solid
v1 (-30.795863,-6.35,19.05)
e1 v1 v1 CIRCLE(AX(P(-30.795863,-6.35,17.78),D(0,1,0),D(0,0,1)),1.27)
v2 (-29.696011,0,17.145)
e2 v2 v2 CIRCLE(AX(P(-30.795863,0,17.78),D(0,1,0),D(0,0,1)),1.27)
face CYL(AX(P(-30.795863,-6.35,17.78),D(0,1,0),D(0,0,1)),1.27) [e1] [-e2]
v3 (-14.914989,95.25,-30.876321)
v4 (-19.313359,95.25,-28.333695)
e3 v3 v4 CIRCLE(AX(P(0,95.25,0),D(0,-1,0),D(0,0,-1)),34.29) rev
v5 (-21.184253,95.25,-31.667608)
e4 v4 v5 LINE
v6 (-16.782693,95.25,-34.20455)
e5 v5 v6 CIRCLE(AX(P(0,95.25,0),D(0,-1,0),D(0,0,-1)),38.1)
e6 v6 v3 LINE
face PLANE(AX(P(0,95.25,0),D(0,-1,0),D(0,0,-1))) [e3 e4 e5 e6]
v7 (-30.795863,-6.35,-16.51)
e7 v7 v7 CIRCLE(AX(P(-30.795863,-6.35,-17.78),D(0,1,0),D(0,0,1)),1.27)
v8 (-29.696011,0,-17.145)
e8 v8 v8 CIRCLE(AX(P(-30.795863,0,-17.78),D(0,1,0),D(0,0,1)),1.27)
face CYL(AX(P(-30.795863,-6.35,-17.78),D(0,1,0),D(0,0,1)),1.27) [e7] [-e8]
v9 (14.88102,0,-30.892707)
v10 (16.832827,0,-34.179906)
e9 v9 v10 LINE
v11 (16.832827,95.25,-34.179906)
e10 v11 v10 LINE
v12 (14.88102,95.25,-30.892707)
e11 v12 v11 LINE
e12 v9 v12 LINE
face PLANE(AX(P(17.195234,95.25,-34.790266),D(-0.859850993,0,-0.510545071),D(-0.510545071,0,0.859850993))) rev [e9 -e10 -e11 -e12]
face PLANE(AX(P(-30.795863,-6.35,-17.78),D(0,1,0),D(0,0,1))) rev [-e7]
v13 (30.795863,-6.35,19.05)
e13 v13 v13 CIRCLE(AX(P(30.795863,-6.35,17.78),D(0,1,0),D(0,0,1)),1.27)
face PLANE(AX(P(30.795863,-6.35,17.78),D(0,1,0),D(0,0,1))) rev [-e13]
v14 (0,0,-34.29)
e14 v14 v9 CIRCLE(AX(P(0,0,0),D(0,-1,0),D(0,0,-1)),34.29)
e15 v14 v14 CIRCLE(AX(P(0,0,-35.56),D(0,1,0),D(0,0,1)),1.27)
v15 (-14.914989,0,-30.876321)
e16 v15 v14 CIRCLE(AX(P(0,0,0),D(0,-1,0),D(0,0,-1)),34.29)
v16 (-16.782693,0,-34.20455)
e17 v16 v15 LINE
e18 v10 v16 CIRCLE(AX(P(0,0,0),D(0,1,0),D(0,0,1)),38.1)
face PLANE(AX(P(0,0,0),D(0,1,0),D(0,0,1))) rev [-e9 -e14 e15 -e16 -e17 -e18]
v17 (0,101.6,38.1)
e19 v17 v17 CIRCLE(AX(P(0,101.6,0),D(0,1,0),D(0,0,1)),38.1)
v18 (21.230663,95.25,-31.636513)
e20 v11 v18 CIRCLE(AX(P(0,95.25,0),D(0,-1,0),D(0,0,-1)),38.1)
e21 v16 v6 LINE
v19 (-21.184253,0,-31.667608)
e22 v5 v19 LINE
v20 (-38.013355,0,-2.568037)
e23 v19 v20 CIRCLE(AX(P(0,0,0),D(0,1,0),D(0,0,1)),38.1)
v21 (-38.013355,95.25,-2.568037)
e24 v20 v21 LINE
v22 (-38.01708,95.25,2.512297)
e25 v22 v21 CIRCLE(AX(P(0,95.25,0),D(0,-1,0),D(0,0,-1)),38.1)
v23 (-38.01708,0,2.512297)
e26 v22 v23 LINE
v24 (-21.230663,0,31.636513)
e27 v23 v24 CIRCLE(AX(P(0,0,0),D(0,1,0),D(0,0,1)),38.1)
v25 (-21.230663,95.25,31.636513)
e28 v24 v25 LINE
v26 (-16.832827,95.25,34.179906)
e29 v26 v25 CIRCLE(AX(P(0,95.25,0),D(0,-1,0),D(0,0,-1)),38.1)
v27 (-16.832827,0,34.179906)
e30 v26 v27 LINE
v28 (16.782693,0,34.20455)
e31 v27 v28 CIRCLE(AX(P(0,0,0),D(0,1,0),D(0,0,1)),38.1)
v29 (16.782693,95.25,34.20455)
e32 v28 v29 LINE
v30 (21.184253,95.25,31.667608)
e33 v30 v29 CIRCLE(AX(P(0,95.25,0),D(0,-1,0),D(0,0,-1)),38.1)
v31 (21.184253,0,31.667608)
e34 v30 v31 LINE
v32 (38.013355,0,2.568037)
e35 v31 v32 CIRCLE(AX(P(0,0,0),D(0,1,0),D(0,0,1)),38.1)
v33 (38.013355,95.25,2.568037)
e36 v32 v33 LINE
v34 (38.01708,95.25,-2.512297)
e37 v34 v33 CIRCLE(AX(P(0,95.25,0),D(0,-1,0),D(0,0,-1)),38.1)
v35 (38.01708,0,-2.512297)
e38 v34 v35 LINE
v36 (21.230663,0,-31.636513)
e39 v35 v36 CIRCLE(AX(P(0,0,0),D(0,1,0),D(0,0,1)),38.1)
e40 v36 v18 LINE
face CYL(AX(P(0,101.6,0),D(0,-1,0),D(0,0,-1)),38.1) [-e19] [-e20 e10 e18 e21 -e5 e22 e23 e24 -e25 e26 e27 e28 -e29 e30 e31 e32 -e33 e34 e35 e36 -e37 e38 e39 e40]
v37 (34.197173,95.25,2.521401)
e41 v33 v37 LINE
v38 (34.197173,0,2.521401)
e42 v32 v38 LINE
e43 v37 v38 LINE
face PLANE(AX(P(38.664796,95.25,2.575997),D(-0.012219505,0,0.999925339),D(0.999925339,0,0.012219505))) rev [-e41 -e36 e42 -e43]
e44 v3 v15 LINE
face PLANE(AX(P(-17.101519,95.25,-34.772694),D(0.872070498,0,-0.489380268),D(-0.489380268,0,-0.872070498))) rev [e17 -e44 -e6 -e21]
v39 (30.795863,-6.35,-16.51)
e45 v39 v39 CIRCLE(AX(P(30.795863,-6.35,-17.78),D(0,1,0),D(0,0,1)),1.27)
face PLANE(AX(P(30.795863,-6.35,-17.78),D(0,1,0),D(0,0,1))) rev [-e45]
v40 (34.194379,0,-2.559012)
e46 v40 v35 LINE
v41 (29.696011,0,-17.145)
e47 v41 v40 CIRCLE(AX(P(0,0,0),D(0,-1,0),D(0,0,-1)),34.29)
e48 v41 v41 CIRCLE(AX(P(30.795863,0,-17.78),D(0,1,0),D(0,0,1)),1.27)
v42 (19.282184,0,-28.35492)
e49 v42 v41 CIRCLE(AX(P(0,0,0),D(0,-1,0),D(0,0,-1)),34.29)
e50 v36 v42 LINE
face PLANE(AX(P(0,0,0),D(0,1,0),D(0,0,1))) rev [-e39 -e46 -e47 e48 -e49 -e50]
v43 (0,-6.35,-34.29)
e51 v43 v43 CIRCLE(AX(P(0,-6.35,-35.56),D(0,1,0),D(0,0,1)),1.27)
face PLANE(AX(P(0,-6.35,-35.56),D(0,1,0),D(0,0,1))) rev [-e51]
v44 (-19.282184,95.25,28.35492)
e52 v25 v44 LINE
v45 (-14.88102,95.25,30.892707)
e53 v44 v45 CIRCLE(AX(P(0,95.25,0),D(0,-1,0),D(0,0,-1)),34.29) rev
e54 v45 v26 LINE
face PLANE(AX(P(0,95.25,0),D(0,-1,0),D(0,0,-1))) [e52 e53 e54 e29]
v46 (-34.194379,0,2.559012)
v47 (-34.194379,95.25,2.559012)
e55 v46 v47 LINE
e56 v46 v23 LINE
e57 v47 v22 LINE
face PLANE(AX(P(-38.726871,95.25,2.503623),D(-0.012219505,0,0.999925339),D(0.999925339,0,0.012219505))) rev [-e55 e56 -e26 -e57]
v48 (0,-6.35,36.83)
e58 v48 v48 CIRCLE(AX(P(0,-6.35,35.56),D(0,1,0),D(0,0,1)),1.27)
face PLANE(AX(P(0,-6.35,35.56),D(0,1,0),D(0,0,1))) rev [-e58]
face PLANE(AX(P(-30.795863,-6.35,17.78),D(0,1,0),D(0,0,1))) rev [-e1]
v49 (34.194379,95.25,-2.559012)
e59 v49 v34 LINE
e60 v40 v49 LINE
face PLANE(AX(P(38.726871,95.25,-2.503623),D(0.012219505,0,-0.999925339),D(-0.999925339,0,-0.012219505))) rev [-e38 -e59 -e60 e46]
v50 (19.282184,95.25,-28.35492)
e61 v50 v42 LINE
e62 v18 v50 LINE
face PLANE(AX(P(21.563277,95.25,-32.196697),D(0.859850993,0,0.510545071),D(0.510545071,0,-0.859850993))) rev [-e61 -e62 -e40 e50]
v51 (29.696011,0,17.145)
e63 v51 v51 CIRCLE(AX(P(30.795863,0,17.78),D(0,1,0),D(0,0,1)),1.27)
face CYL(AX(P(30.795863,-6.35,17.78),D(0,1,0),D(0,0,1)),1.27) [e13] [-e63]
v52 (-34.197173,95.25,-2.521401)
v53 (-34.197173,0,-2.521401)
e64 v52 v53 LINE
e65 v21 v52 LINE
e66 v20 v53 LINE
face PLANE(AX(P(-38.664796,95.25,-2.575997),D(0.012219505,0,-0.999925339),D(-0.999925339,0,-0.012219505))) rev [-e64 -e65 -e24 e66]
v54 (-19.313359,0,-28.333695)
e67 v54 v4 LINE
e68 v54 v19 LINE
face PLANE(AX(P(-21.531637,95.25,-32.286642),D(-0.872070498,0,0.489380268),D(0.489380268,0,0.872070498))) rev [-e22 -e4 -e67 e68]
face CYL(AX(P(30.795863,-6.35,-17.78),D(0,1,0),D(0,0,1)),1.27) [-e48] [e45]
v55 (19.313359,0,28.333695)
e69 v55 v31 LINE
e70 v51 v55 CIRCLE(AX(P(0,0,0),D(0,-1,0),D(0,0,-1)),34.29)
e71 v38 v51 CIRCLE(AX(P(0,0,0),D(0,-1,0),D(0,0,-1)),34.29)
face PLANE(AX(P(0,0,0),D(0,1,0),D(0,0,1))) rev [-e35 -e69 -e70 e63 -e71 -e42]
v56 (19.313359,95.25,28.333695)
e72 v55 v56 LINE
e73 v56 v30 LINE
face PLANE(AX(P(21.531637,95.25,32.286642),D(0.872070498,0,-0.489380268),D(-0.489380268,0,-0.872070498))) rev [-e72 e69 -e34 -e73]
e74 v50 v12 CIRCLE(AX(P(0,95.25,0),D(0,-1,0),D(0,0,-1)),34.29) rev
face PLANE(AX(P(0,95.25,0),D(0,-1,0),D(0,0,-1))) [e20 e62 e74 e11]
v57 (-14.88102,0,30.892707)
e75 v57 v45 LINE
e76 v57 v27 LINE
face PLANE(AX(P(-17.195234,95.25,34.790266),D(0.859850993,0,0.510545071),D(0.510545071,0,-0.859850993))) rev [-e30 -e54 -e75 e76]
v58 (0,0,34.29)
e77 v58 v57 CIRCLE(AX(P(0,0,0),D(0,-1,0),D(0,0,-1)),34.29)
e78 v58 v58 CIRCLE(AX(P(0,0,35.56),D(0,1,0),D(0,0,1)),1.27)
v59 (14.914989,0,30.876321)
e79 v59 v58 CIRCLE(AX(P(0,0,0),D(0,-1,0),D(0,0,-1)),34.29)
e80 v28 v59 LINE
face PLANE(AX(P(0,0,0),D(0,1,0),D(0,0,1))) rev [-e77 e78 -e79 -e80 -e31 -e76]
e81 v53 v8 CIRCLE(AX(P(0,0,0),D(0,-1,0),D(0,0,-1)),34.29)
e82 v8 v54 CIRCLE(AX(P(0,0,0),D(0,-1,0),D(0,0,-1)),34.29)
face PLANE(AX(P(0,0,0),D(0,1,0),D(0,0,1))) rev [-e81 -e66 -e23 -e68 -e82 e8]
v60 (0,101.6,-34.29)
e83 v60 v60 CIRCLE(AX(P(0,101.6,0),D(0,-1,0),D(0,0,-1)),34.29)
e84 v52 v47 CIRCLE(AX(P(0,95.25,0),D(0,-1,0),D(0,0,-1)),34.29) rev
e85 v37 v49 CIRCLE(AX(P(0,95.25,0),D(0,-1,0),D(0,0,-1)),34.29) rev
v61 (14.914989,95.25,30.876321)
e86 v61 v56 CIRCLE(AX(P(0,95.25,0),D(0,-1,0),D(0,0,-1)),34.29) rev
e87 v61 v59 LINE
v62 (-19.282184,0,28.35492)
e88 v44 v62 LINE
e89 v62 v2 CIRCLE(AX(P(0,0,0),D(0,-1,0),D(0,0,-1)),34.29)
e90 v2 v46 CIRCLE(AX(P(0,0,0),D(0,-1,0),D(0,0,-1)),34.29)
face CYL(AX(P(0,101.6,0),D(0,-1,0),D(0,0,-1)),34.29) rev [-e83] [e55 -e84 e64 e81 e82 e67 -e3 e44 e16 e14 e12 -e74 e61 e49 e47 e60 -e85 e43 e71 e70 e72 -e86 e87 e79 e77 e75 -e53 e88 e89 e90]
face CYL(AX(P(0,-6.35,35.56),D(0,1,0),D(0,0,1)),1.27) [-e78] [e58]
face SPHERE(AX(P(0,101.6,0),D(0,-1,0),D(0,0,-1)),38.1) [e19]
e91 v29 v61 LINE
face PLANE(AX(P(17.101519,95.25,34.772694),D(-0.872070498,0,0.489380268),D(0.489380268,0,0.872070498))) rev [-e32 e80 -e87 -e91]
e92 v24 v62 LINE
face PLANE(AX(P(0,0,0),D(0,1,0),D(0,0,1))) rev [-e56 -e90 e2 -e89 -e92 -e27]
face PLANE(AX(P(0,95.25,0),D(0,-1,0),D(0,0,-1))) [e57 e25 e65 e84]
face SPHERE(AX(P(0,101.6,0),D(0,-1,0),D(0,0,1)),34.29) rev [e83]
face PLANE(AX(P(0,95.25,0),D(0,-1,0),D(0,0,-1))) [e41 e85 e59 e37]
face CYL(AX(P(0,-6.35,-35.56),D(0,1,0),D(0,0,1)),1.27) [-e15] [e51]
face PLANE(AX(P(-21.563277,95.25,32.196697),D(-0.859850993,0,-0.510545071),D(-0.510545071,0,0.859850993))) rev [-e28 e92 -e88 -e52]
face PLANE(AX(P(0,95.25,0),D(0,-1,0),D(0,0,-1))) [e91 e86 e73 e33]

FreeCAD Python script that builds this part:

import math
import FreeCAD as App
import Part
import Sketcher

V = App.Vector
Q = App.Units.Quantity

doc = App.newDocument("Part")
body = doc.addObject("PartDesign::Body", "Body")

# Sketch on XZ plane
sketch1 = body.newObject("Sketcher::SketchObject", "Sketch")
sketch1.AttachmentSupport = (doc.getObject("XZ_Plane"), [""])
sketch1.MapMode = "FlatFace"
sketch1.addGeometry(Part.Circle(V(0, 0, 0), V(0, 0, 1), 38), False)
sketch1.addConstraint([
    Sketcher.Constraint("Coincident", 0, 3, -1, 1),
    Sketcher.Constraint("Diameter", 0, Q("3 in")),
])
pad1 = body.newObject("PartDesign::Pad", "Pad")
pad1.Profile = sketch1
pad1.Length = Q("4 in")
pad1.Reversed = True

# Sketch on YZ plane
sketch2 = body.newObject("Sketcher::SketchObject", "Sketch001")
sketch2.AttachmentSupport = (doc.getObject("YZ_Plane"), [""])
sketch2.MapMode = "FlatFace"
sketch2.addGeometry([
    Part.LineSegment(V(101.6, -34.3, 0), V(101.6, -38.1, 0)),
    Part.ArcOfCircle(Part.Circle(V(101.6, 0, 0), V(0, 0, 1), 38.1), math.radians(-90), math.radians(0)),
    Part.LineSegment(V(139.7, 0, 0), V(135.9, 0, 0)),
    Part.ArcOfCircle(Part.Circle(V(101.6, 0, 0), V(0, 0, 1), 34.3), math.radians(-90), math.radians(0)),
], False)
sketch2.addConstraint([
    Sketcher.Constraint("Coincident", 0, 2, 1, 1),
    Sketcher.Constraint("Coincident", 1, 2, 2, 1),
    Sketcher.Constraint("Coincident", 2, 2, 3, 2),
    Sketcher.Constraint("Coincident", 3, 1, 0, 1),
    Sketcher.Constraint("Vertical", 0),
    Sketcher.Constraint("Horizontal", 2),
    Sketcher.Constraint("Coincident", 3, 3, 1, 3),
    Sketcher.Constraint("PointOnObject", 1, 3, -1),
    Sketcher.Constraint("PointOnObject", 1, 2, -1),
    Sketcher.Constraint("Vertical", 3, 3, 0, 2),
    Sketcher.Constraint("Radius", 1, Q("1.5 in")),
    Sketcher.Constraint("Radius", 3, Q("1.35 in")),
    Sketcher.Constraint("DistanceX", -1, 1, 1, 3, Q("4 in")),
])
revolution = body.newObject("PartDesign::Revolution", "Revolution")
revolution.Profile = sketch2
revolution.ReferenceAxis = (sketch2, ["H_Axis"])
revolution.Angle = 360

# Sketch on XZ plane
sketch3 = body.newObject("Sketcher::SketchObject", "Sketch002")
sketch3.AttachmentSupport = (doc.getObject("XZ_Plane"), [""])
sketch3.MapMode = "FlatFace"
sketch3.addGeometry(Part.Circle(V(0, 0, 0), V(0, 0, 1), 34), False)
sketch3.addConstraint([
    Sketcher.Constraint("Coincident", 0, 3, -1, 1),
    Sketcher.Constraint("Diameter", 0, Q("2.7 in")),
])
pocket1 = body.newObject("PartDesign::Pocket", "Pocket")
pocket1.Profile = sketch3
pocket1.Length = Q("4 in")

# Sketch on XZ plane
sketch4 = body.newObject("Sketcher::SketchObject", "Sketch003")
sketch4.AttachmentSupport = (doc.getObject("XZ_Plane"), [""])
sketch4.MapMode = "FlatFace"
sketch4.addGeometry([
    Part.Circle(V(0, 35.6, 0), V(0, 0, 1), 1.3),  # 0
    Part.Circle(V(-30.8, 17.8, 0), V(0, 0, 1), 1.3),  # 1
    Part.Circle(V(-30.8, -17.8, 0), V(0, 0, 1), 1.3),  # 2
    Part.Circle(V(0, -35.6, 0), V(0, 0, 1), 1.3),  # 3
    Part.Circle(V(30.8, -17.8, 0), V(0, 0, 1), 1.3),  # 4
    Part.Circle(V(30.8, 17.8, 0), V(0, 0, 1), 1.3),  # 5
], False)
sketch4.addConstraint([
    Sketcher.Constraint("Equal", 0, 1),
    Sketcher.Constraint("Equal", 1, 2),
    Sketcher.Constraint("Equal", 2, 3),
    Sketcher.Constraint("Equal", 3, 4),
    Sketcher.Constraint("Equal", 4, 5),
    Sketcher.Constraint("Symmetric", 0, 3, 3, 3, -1, 1),
    Sketcher.Constraint("Symmetric", 1, 3, 4, 3, -1, 1),
    Sketcher.Constraint("Symmetric", 2, 3, 5, 3, -1, 1),
    Sketcher.Constraint("Symmetric", 2, 3, 4, 3, -2),
    Sketcher.Constraint("PointOnObject", 0, 3, -2),
    Sketcher.Constraint("Diameter", 0, Q("0.1 in")),
    Sketcher.Constraint("DistanceY", -1, 1, 0, 3, Q("1.4 in")),
    Sketcher.Constraint("DistanceY", -1, 1, 1, 3, Q("0.7 in")),
    Sketcher.Constraint("DistanceX", 1, 3, -1, 1, Q("30.795863 mm")),
])
pad2 = body.newObject("PartDesign::Pad", "Pad001")
pad2.Profile = sketch4
pad2.Length = Q("0.25 in")

# Sketch on XZ plane
sketch5 = body.newObject("Sketcher::SketchObject", "Sketch004")
sketch5.AttachmentSupport = (doc.getObject("XZ_Plane"), [""])
sketch5.MapMode = "FlatFace"
sketch5.addGeometry([
    Part.LineSegment(V(-17, 35, 0), V(-22, 32, 0)),  # 0
    Part.LineSegment(V(-22, 32, 0), V(-19, 27, 0)),  # 1
    Part.LineSegment(V(-19, 27, 0), V(-14, 30, 0)),  # 2
    Part.LineSegment(V(-14, 30, 0), V(-17, 35, 0)),  # 3
    Part.LineSegment(V(14, 30, 0), V(19, 27, 0)),  # 4
    Part.LineSegment(V(19, 27, 0), V(22, 32, 0)),  # 5
    Part.LineSegment(V(22, 32, 0), V(17, 35, 0)),  # 6
    Part.LineSegment(V(17, 35, 0), V(14, 30, 0)),  # 7
    Part.LineSegment(V(33, 3, 0), V(33, -3, 0)),  # 8
    Part.LineSegment(V(33, -3, 0), V(39, -3, 0)),  # 9
    Part.LineSegment(V(39, -3, 0), V(39, 3, 0)),  # 10
    Part.LineSegment(V(39, 3, 0), V(33, 3, 0)),  # 11
    Part.LineSegment(V(19, -27, 0), V(14, -30, 0)),  # 12
    Part.LineSegment(V(14, -30, 0), V(17, -35, 0)),  # 13
    Part.LineSegment(V(17, -35, 0), V(22, -32, 0)),  # 14
    Part.LineSegment(V(22, -32, 0), V(19, -27, 0)),  # 15
    Part.LineSegment(V(-14, -30, 0), V(-19, -27, 0)),  # 16
    Part.LineSegment(V(-19, -27, 0), V(-22, -32, 0)),  # 17
    Part.LineSegment(V(-22, -32, 0), V(-17, -35, 0)),  # 18
    Part.LineSegment(V(-17, -35, 0), V(-14, -30, 0)),  # 19
    Part.LineSegment(V(-33, -3, 0), V(-33, 3, 0)),  # 20
    Part.LineSegment(V(-33, 3, 0), V(-39, 3, 0)),  # 21
    Part.LineSegment(V(-39, 3, 0), V(-39, -3, 0)),  # 22
    Part.LineSegment(V(-39, -3, 0), V(-33, -3, 0)),  # 23
], False)
sketch5.addConstraint([
    Sketcher.Constraint("Coincident", 0, 2, 1, 1),
    Sketcher.Constraint("Coincident", 1, 2, 2, 1),
    Sketcher.Constraint("Coincident", 2, 2, 3, 1),
    Sketcher.Constraint("Coincident", 3, 2, 0, 1),
    Sketcher.Constraint("Coincident", 4, 2, 5, 1),
    Sketcher.Constraint("Coincident", 5, 2, 6, 1),
    Sketcher.Constraint("Coincident", 6, 2, 7, 1),
    Sketcher.Constraint("Coincident", 7, 2, 4, 1),
    Sketcher.Constraint("Coincident", 8, 2, 9, 1),
    Sketcher.Constraint("Coincident", 9, 2, 10, 1),
    Sketcher.Constraint("Coincident", 10, 2, 11, 1),
    Sketcher.Constraint("Coincident", 11, 2, 8, 1),
    Sketcher.Constraint("Coincident", 12, 2, 13, 1),
    Sketcher.Constraint("Coincident", 13, 2, 14, 1),
    Sketcher.Constraint("Coincident", 14, 2, 15, 1),
    Sketcher.Constraint("Coincident", 15, 2, 12, 1),
    Sketcher.Constraint("Coincident", 16, 2, 17, 1),
    Sketcher.Constraint("Coincident", 17, 2, 18, 1),
    Sketcher.Constraint("Coincident", 18, 2, 19, 1),
    Sketcher.Constraint("Coincident", 19, 2, 16, 1),
    Sketcher.Constraint("Coincident", 20, 2, 21, 1),
    Sketcher.Constraint("Coincident", 21, 2, 22, 1),
    Sketcher.Constraint("Coincident", 22, 2, 23, 1),
    Sketcher.Constraint("Coincident", 23, 2, 20, 1),
    Sketcher.Constraint("Symmetric", 2, 2, 12, 2, -1, 1),
    Sketcher.Constraint("Symmetric", 3, 2, 13, 2, -1, 1),
    Sketcher.Constraint("Symmetric", 0, 2, 14, 2, -1, 1),
    Sketcher.Constraint("Symmetric", 1, 2, 15, 2, -1, 1),
    Sketcher.Constraint("Symmetric", 4, 2, 16, 2, -1, 1),
    Sketcher.Constraint("Symmetric", 5, 2, 17, 2, -1, 1),
    Sketcher.Constraint("Symmetric", 6, 2, 18, 2, -1, 1),
    Sketcher.Constraint("Symmetric", 7, 2, 19, 2, -1, 1),
    Sketcher.Constraint("Symmetric", 8, 2, 20, 2, -1, 1),
    Sketcher.Constraint("Symmetric", 9, 2, 21, 2, -1, 1),
    Sketcher.Constraint("Symmetric", 10, 2, 22, 2, -1, 1),
    Sketcher.Constraint("Symmetric", 11, 2, 23, 2, -1, 1),
    Sketcher.Constraint("Perpendicular", 0, 1),
    Sketcher.Constraint("Perpendicular", 1, 2),
    Sketcher.Constraint("Perpendicular", 2, 3),
    Sketcher.Constraint("Perpendicular", 4, 5),
    Sketcher.Constraint("Perpendicular", 5, 6),
    Sketcher.Constraint("Perpendicular", 6, 7),
    Sketcher.Constraint("Perpendicular", 8, 9),
    Sketcher.Constraint("Perpendicular", 9, 10),
    Sketcher.Constraint("Perpendicular", 10, 11),
    Sketcher.Constraint("Horizontal", 10, 2, 20, 2),
    Sketcher.Constraint("Equal", 2, 4),
    Sketcher.Constraint("Equal", 3, 5),
    Sketcher.Constraint("Equal", 6, 8),
    Sketcher.Constraint("Equal", 7, 9),
    Sketcher.Constraint("Distance", 0, Q("0.2 in")),
    Sketcher.Constraint("DistanceX", 1, 2, 5, 2, Q("1.5776001 in")),
    Sketcher.Constraint("DistanceX", 0, 2, 4, 2, Q("40.196398 mm")),
    Sketcher.Constraint("DistanceX", 2, 2, 5, 2, Q("35.703 mm")),
    Sketcher.Constraint("DistanceY", 14, 2, 8, 2, Q("29.620699 mm")),
    Sketcher.Constraint("Distance", 1, Q("5.922829 mm")),
    Sketcher.Constraint("DistanceX", -1, 1, 4, 2, Q("18.633121 mm")),
    Sketcher.Constraint("DistanceY", -1, 1, 7, 2, Q("29.607569 mm")),
    Sketcher.Constraint("DistanceX", -1, 1, 9, 2, Q("38.726871 mm")),
    Sketcher.Constraint("DistanceX", -1, 1, 11, 2, Q("32.742409 mm")),
])
pocket2 = body.newObject("PartDesign::Pocket", "Pocket001")
pocket2.Profile = sketch5
pocket2.Length = Q("3.75 in")

doc.recompute()
